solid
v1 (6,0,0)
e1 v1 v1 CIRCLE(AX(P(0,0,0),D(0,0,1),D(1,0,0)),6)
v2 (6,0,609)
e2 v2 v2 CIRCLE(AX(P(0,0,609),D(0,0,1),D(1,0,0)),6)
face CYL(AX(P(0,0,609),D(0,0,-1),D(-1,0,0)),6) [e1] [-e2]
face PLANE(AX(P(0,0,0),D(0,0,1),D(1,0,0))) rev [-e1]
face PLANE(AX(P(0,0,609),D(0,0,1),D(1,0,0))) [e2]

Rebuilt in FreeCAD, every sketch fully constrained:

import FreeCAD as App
import Part
import Sketcher
Q = App.Units.Quantity

doc = App.newDocument("Part")
body = doc.addObject("PartDesign::Body", "Body")

# Sketch on XY plane
sketch1 = body.newObject("Sketcher::SketchObject", "Sketch")
sketch1.AttachmentSupport = (doc.getObject("XY_Plane"), [""])
sketch1.MapMode = "FlatFace"
sketch1.addGeometry(Part.Circle(App.Vector(0, 0, 0), App.Vector(0, 0, 1), 6), False)
sketch1.addConstraint(Sketcher.Constraint("Coincident", 0, 3, -1, 1))
sketch1.addConstraint(Sketcher.Constraint("Diameter", 0, Q("12 mm")))
pad1 = body.newObject("PartDesign::Pad", "Pad")
pad1.Profile = sketch1
pad1.Length = 609

doc.recompute()
